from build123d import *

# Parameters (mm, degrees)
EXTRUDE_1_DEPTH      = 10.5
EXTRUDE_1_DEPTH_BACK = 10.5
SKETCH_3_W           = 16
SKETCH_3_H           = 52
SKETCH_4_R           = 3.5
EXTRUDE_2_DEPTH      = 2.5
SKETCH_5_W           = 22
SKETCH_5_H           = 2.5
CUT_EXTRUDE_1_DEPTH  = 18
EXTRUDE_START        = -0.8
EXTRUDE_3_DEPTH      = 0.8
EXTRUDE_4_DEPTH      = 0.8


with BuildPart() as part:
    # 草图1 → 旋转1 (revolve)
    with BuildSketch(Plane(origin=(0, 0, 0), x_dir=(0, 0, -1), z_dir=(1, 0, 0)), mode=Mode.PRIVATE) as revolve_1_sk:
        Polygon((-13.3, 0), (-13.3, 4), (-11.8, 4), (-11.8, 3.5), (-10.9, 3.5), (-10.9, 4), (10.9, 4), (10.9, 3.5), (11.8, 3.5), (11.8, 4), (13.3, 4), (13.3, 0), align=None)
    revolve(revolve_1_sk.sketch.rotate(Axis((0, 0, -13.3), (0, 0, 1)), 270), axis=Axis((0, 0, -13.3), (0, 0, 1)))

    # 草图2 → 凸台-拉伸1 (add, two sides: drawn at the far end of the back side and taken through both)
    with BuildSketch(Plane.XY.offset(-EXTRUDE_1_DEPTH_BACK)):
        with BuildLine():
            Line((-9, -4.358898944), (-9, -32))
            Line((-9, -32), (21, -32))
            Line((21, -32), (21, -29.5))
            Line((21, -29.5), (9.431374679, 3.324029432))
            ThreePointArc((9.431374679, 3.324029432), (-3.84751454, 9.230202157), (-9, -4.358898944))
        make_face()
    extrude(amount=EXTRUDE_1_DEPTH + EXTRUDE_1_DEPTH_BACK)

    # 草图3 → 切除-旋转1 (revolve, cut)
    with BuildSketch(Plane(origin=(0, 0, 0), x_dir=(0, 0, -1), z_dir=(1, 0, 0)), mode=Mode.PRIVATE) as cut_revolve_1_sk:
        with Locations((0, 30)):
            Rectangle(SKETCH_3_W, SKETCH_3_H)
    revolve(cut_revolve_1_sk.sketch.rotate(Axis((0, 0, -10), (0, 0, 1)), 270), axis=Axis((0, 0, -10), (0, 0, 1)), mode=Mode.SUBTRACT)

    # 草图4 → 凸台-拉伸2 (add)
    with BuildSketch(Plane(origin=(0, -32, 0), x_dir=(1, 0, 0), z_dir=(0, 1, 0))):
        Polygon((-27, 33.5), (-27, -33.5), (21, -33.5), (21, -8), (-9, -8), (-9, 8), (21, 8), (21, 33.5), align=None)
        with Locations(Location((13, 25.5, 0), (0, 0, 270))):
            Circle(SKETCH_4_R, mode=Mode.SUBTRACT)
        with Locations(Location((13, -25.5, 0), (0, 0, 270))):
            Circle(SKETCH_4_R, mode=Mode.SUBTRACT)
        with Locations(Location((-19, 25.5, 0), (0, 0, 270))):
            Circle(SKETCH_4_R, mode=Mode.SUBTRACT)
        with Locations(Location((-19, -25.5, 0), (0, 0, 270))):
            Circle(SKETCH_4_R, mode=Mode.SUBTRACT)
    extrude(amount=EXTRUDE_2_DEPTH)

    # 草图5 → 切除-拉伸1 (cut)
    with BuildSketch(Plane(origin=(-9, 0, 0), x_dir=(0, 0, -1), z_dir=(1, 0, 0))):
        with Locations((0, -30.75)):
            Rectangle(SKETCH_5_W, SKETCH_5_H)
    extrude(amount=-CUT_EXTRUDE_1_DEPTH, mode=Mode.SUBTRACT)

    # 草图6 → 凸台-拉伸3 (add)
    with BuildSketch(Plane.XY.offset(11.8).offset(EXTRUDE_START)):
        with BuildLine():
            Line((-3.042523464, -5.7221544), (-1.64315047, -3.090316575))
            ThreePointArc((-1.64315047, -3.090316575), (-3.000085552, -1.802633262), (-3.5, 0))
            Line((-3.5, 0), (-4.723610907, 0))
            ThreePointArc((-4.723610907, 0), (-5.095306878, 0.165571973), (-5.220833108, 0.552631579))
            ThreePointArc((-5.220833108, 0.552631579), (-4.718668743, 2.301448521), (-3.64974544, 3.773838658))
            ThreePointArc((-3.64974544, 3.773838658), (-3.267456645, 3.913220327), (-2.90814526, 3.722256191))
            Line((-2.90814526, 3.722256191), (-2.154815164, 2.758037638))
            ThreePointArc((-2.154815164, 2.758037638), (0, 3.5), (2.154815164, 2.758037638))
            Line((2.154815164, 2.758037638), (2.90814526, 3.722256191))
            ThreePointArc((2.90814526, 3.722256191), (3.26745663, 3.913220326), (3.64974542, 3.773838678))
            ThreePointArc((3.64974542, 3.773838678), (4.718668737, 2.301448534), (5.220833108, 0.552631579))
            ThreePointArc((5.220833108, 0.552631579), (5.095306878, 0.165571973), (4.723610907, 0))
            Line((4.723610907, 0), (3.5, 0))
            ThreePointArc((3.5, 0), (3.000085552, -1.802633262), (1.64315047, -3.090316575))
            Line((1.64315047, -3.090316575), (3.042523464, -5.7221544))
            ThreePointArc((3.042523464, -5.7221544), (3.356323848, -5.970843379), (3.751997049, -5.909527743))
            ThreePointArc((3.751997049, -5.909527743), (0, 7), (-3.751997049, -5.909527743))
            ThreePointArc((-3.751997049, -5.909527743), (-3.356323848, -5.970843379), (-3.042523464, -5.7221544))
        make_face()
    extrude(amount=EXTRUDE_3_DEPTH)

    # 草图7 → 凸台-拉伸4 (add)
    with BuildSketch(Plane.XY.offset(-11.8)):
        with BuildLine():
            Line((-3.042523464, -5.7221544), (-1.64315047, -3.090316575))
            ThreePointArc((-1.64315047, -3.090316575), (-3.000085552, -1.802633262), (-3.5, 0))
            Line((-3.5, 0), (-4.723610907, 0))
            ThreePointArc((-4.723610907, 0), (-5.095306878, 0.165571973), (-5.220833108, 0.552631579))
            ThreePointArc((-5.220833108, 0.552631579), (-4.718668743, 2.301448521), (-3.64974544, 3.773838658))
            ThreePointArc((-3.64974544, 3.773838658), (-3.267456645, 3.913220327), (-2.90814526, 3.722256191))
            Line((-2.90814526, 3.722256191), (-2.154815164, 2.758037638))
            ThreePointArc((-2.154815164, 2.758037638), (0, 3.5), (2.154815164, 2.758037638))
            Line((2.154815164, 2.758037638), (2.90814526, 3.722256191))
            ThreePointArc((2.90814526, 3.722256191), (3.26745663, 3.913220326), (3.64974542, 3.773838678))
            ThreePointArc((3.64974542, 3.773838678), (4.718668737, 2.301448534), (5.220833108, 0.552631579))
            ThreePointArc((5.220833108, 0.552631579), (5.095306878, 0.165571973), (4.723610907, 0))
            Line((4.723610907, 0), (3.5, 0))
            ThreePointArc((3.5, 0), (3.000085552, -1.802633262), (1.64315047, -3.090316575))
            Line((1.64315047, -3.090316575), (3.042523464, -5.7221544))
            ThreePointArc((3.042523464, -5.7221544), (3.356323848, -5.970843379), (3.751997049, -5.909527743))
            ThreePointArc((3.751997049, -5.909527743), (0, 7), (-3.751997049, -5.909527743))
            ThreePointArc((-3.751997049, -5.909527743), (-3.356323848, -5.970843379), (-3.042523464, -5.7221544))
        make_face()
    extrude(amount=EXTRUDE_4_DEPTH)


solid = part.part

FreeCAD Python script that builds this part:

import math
import FreeCAD as App
import Part
import Sketcher
Q = App.Units.Quantity


def add_polygon(sketch, points):
    """Adds a closed chain of lines whose ends are joined by coincident constraints."""
    first, n = sketch.GeometryCount, len(points)
    for a, b in zip(points, points[1:] + points[:1]):
        sketch.addGeometry(Part.LineSegment(App.Vector(*a, 0), App.Vector(*b, 0)), False)
    for i in range(n):
        sketch.addConstraint(Sketcher.Constraint("Coincident", first + i, 2, first + (i + 1) % n, 1))

doc = App.newDocument("Part")
body = doc.addObject("PartDesign::Body", "Body")

# Sketch on YZ plane
sketch1 = doc.addObject("Sketcher::SketchObject", "Sketch")
body.addObject(sketch1)
sketch1.AttachmentSupport = (doc.YZ_Plane, [""])
sketch1.MapMode = "FlatFace"
add_polygon(sketch1, [(4, 13.3), (0, 13.3), (0, -13.3), (4, -13.3), (4, -11.8), (3.5, -11.8), (3.5, -10.9), (4, -10.9), (4, 10.9), (3.5, 10.9), (3.5, 11.8), (4, 11.8)])  # lines 0-11
sketch1.addConstraint([
    Sketcher.Constraint("Horizontal", 0),
    Sketcher.Constraint("Vertical", 1),
    Sketcher.Constraint("Horizontal", 2),
    Sketcher.Constraint("Vertical", 3),
    Sketcher.Constraint("Horizontal", 4),
    Sketcher.Constraint("Vertical", 5),
    Sketcher.Constraint("Horizontal", 6),
    Sketcher.Constraint("Vertical", 7),
    Sketcher.Constraint("Horizontal", 8),
    Sketcher.Constraint("Vertical", 9),
    Sketcher.Constraint("Horizontal", 10),
    Sketcher.Constraint("Vertical", 11),
    Sketcher.Constraint("Symmetric", 0, 2, 1, 2, -1, 1),
    Sketcher.Constraint("Symmetric", 5, 2, 8, 2, -1),
    Sketcher.Constraint("Symmetric", 3, 2, 10, 2, -1),
    Sketcher.Constraint("Vertical", 3, 2, 6, 2),
    Sketcher.Constraint("DistanceX", 0, 2, 0, 1, Q("4 mm")),
    Sketcher.Constraint("DistanceX", 4, 2, 4, 1, Q("0.5 mm")),
    Sketcher.Constraint("DistanceY", 1, 2, 1, 1, Q("26.6 mm")),
    Sketcher.Constraint("DistanceY", 3, 1, 3, 2, Q("1.5 mm")),
    Sketcher.Constraint("DistanceY", 5, 1, 5, 2, Q("0.9 mm")),
])
revolution = doc.addObject("PartDesign::Revolution", "Revolution")
body.addObject(revolution)
revolution.Profile = sketch1
revolution.ReferenceAxis = (sketch1, ["V_Axis"])
revolution.Angle = 360

# Sketch on XY plane
sketch2 = doc.addObject("Sketcher::SketchObject", "Sketch001")
body.addObject(sketch2)
sketch2.AttachmentSupport = (doc.XY_Plane, [""])
sketch2.MapMode = "FlatFace"
sketch2.addGeometry([
    Part.LineSegment(App.Vector(-9, -4.4, 0), App.Vector(-9, -32, 0)),  # 0
    Part.LineSegment(App.Vector(-9, -32, 0), App.Vector(21, -32, 0)),  # 1
    Part.LineSegment(App.Vector(21, -32, 0), App.Vector(21, -29.5, 0)),  # 2
    Part.LineSegment(App.Vector(21, -29.5, 0), App.Vector(9.4, 3.3, 0)),  # 3
    Part.ArcOfCircle(Part.Circle(App.Vector(0, 0, 0), App.Vector(0, 0, 1), 10), math.radians(19), math.radians(206)),  # 4
], False)
sketch2.addConstraint([
    Sketcher.Constraint("Coincident", 0, 2, 1, 1),
    Sketcher.Constraint("Coincident", 1, 2, 2, 1),
    Sketcher.Constraint("Coincident", 2, 2, 3, 1),
    Sketcher.Constraint("Tangent", 3, 2, 4, 1),
    Sketcher.Constraint("Coincident", 4, 2, 0, 1),
    Sketcher.Constraint("Vertical", 0),
    Sketcher.Constraint("Horizontal", 1),
    Sketcher.Constraint("Vertical", 2),
    Sketcher.Constraint("Coincident", 4, 3, -1, 1),
    Sketcher.Constraint("Radius", 4, Q("10 mm")),
    Sketcher.Constraint("DistanceX", 1, 1, 1, 2, Q("30 mm")),
    Sketcher.Constraint("DistanceY", 2, 1, 2, 2, Q("2.5 mm")),
    Sketcher.Constraint("DistanceX", 0, 2, -1, 1, Q("9 mm")),
    Sketcher.Constraint("DistanceY", 0, 2, -1, 1, Q("32 mm")),
])
pad1 = doc.addObject("PartDesign::Pad", "Pad")
body.addObject(pad1)
pad1.Profile = sketch2
pad1.Type = "TwoLengths"
pad1.Length = 10.5
pad1.Length2 = 10.5

# Sketch on YZ plane
sketch3 = doc.addObject("Sketcher::SketchObject", "Sketch002")
body.addObject(sketch3)
sketch3.AttachmentSupport = (doc.YZ_Plane, [""])
sketch3.MapMode = "FlatFace"
add_polygon(sketch3, [(56, 8), (4, 8), (4, -8), (56, -8)])  # lines 0-3
sketch3.addConstraint([
    Sketcher.Constraint("Horizontal", 0),
    Sketcher.Constraint("Vertical", 1),
    Sketcher.Constraint("Horizontal", 2),
    Sketcher.Constraint("Vertical", 3),
    Sketcher.Constraint("DistanceX", 0, 2, 0, 1, Q("52 mm")),
    Sketcher.Constraint("DistanceY", 1, 2, 1, 1, Q("16 mm")),
    Sketcher.Constraint("DistanceX", -1, 1, 0, 2, Q("4 mm")),
    Sketcher.Constraint("DistanceY", -1, 1, 0, 2, Q("8 mm")),
])
groove = doc.addObject("PartDesign::Groove", "Groove")
body.addObject(groove)
groove.Profile = sketch3
groove.ReferenceAxis = (sketch3, ["V_Axis"])
groove.Angle = 360

# Sketch on XZ plane
sketch4 = doc.addObject("Sketcher::SketchObject", "Sketch003")
body.addObject(sketch4)
sketch4.AttachmentSupport = (doc.XZ_Plane, [""])
sketch4.MapMode = "FlatFace"
sketch4.AttachmentOffset = App.Placement(App.Vector(0, 0, 32), App.Rotation())
add_polygon(sketch4, [(-27, -33.5), (-27, 33.5), (21, 33.5), (21, 8), (-9, 8), (-9, -8), (21, -8), (21, -33.5)])  # lines 0-7
sketch4.addGeometry(Part.Circle(App.Vector(-19, 25.5, 0), App.Vector(0, 0, 1), 3.5), False)  # 8
sketch4.addGeometry(Part.Circle(App.Vector(13, 25.5, 0), App.Vector(0, 0, 1), 3.5), False)  # 9
sketch4.addGeometry(Part.Circle(App.Vector(-19, -25.5, 0), App.Vector(0, 0, 1), 3.5), False)  # 10
sketch4.addGeometry(Part.Circle(App.Vector(13, -25.5, 0), App.Vector(0, 0, 1), 3.5), False)  # 11
sketch4.addConstraint([
    Sketcher.Constraint("Vertical", 0),
    Sketcher.Constraint("Horizontal", 1),
    Sketcher.Constraint("Vertical", 2),
    Sketcher.Constraint("Horizontal", 3),
    Sketcher.Constraint("Vertical", 4),
    Sketcher.Constraint("Horizontal", 5),
    Sketcher.Constraint("Vertical", 6),
    Sketcher.Constraint("Horizontal", 7),
    Sketcher.Constraint("Equal", 8, 9),
    Sketcher.Constraint("Equal", 9, 10),
    Sketcher.Constraint("Equal", 10, 11),
    Sketcher.Constraint("Symmetric", 8, 3, 10, 3, -1),
    Sketcher.Constraint("Symmetric", 9, 3, 11, 3, -1),
    Sketcher.Constraint("Symmetric", 2, 2, 5, 2, -1),
    Sketcher.Constraint("Horizontal", 8, 3, 9, 3),
    Sketcher.Constraint("Equal", 2, 6),
    Sketcher.Constraint("Diameter", 8, Q("7 mm")),
    Sketcher.Constraint("DistanceX", 1, 1, 1, 2, Q("48 mm")),
    Sketcher.Constraint("DistanceX", 3, 2, 3, 1, Q("30 mm")),
    Sketcher.Constraint("DistanceY", 0, 1, 0, 2, Q("67 mm")),
    Sketcher.Constraint("DistanceY", 4, 2, 4, 1, Q("16 mm")),
    Sketcher.Constraint("DistanceX", 8, 3, -1, 1, Q("19 mm")),
    Sketcher.Constraint("DistanceX", -1, 1, 9, 3, Q("13 mm")),
    Sketcher.Constraint("DistanceX", 0, 2, -1, 1, Q("27 mm")),
    Sketcher.Constraint("DistanceY", 10, 3, 8, 3, Q("51 mm")),
])
pad2 = doc.addObject("PartDesign::Pad", "Pad001")
body.addObject(pad2)
pad2.Profile = sketch4
pad2.Length = 2.5
pad2.Reversed = True

# Sketch on YZ plane
sketch5 = doc.addObject("Sketcher::SketchObject", "Sketch004")
body.addObject(sketch5)
sketch5.AttachmentSupport = (doc.YZ_Plane, [""])
sketch5.MapMode = "FlatFace"
sketch5.AttachmentOffset = App.Placement(App.Vector(0, 0, -9), App.Rotation())
add_polygon(sketch5, [(-29.5, 11), (-32, 11), (-32, -11), (-29.5, -11)])  # lines 0-3
sketch5.addConstraint([
    Sketcher.Constraint("Horizontal", 0),
    Sketcher.Constraint("Vertical", 1),
    Sketcher.Constraint("Horizontal", 2),
    Sketcher.Constraint("Vertical", 3),
    Sketcher.Constraint("DistanceY", 1, 2, 1, 1, Q("22 mm")),
    Sketcher.Constraint("DistanceX", 0, 2, 0, 1, Q("2.5 mm")),
    Sketcher.Constraint("DistanceX", 0, 2, -1, 1, Q("32 mm")),
    Sketcher.Constraint("DistanceY", -1, 1, 0, 2, Q("11 mm")),
])
pocket1 = doc.addObject("PartDesign::Pocket", "Pocket")
body.addObject(pocket1)
pocket1.Profile = sketch5
pocket1.Length = 18

# Sketch on XY plane
sketch6 = doc.addObject("Sketcher::SketchObject", "Sketch005")
body.addObject(sketch6)
sketch6.AttachmentSupport = (doc.XY_Plane, [""])
sketch6.MapMode = "FlatFace"
sketch6.AttachmentOffset = App.Placement(App.Vector(0, 0, 11), App.Rotation())
sketch6.addGeometry([
    Part.LineSegment(App.Vector(-3, -5.7, 0), App.Vector(-1.6, -3.1, 0)),  # 0
    Part.ArcOfCircle(Part.Circle(App.Vector(0, 0, 0), App.Vector(0, 0, 1), 3.5), math.radians(-180), math.radians(-118)),  # 1
    Part.LineSegment(App.Vector(-3.5, 0, 0), App.Vector(-4.7, 0, 0)),  # 2
    Part.ArcOfCircle(Part.Circle(App.Vector(-4.7, 0.5, 0), App.Vector(0, 0, 1), 0.5), math.radians(174), math.radians(270)),  # 3
    Part.ArcOfCircle(Part.Circle(App.Vector(0, 0, 0), App.Vector(0, 0, 1), 5.2), math.radians(134), math.radians(174)),  # 4
    Part.ArcOfCircle(Part.Circle(App.Vector(-3.3, 3.4, 0), App.Vector(0, 0, 1), 0.5), math.radians(38), math.radians(134)),  # 5
    Part.LineSegment(App.Vector(-2.9, 3.7, 0), App.Vector(-2.2, 2.8, 0)),  # 6
    Part.ArcOfCircle(Part.Circle(App.Vector(0, 0, 0), App.Vector(0, 0, 1), 3.5), math.radians(52), math.radians(128)),  # 7
    Part.LineSegment(App.Vector(2.2, 2.8, 0), App.Vector(2.9, 3.7, 0)),  # 8
    Part.ArcOfCircle(Part.Circle(App.Vector(3.3, 3.4, 0), App.Vector(0, 0, 1), 0.5), math.radians(46), math.radians(142)),  # 9
    Part.ArcOfCircle(Part.Circle(App.Vector(0, 0, 0), App.Vector(0, 0, 1), 5.2), math.radians(6), math.radians(46)),  # 10
    Part.ArcOfCircle(Part.Circle(App.Vector(4.7, 0.5, 0), App.Vector(0, 0, 1), 0.5), math.radians(-90), math.radians(6)),  # 11
    Part.LineSegment(App.Vector(4.7, 0, 0), App.Vector(3.5, 0, 0)),  # 12
    Part.ArcOfCircle(Part.Circle(App.Vector(0, 0, 0), App.Vector(0, 0, 1), 3.5), math.radians(-62), math.radians(0)),  # 13
    Part.LineSegment(App.Vector(1.6, -3.1, 0), App.Vector(3, -5.7, 0)),  # 14
    Part.ArcOfCircle(Part.Circle(App.Vector(3.5, -5.5, 0), App.Vector(0, 0, 1), 0.5), math.radians(-152), math.radians(-58)),  # 15
    Part.ArcOfCircle(Part.Circle(App.Vector(0, 0, 0), App.Vector(0, 0, 1), 7), math.radians(-58), math.radians(238)),  # 16
    Part.ArcOfCircle(Part.Circle(App.Vector(-3.5, -5.5, 0), App.Vector(0, 0, 1), 0.5), math.radians(-122), math.radians(-28)),  # 17
], False)
sketch6.addConstraint([
    Sketcher.Constraint("Coincident", 0, 2, 1, 2),
    Sketcher.Constraint("Coincident", 1, 1, 2, 1),
    Sketcher.Constraint("Tangent", 2, 2, 3, 2),
    Sketcher.Constraint("Tangent", 3, 1, 4, 2),
    Sketcher.Constraint("Tangent", 4, 1, 5, 2),
    Sketcher.Constraint("Tangent", 5, 1, 6, 1),
    Sketcher.Constraint("Coincident", 6, 2, 7, 2),
    Sketcher.Constraint("Coincident", 7, 1, 8, 1),
    Sketcher.Constraint("Tangent", 8, 2, 9, 2),
    Sketcher.Constraint("Tangent", 9, 1, 10, 2),
    Sketcher.Constraint("Tangent", 10, 1, 11, 2),
    Sketcher.Constraint("Tangent", 11, 1, 12, 1),
    Sketcher.Constraint("Coincident", 12, 2, 13, 2),
    Sketcher.Constraint("Coincident", 13, 1, 14, 1),
    Sketcher.Constraint("Tangent", 14, 2, 15, 1),
    Sketcher.Constraint("Tangent", 15, 2, 16, 1),
    Sketcher.Constraint("Tangent", 16, 2, 17, 1),
    Sketcher.Constraint("Tangent", 17, 2, 0, 1),
    Sketcher.Constraint("Horizontal", 2),
    Sketcher.Constraint("Horizontal", 12),
    Sketcher.Constraint("Coincident", 1, 3, -1, 1),
    Sketcher.Constraint("Coincident", 4, 3, -1, 1),
    Sketcher.Constraint("Coincident", 7, 3, -1, 1),
    Sketcher.Constraint("Coincident", 10, 3, -1, 1),
    Sketcher.Constraint("Coincident", 13, 3, -1, 1),
    Sketcher.Constraint("Coincident", 16, 3, -1, 1),
    Sketcher.Constraint("Equal", 3, 5),
    Sketcher.Constraint("Equal", 1, 7),
    Sketcher.Constraint("Equal", 5, 9),
    Sketcher.Constraint("Equal", 4, 10),
    Sketcher.Constraint("Equal", 9, 11),
    Sketcher.Constraint("Equal", 7, 13),
    Sketcher.Constraint("Equal", 11, 15),
    Sketcher.Constraint("Equal", 15, 17),
    Sketcher.Constraint("Symmetric", 2, 2, 11, 1, -1, 1),
    Sketcher.Constraint("Symmetric", 5, 1, 8, 2, -2),
    Sketcher.Constraint("Symmetric", 14, 2, 17, 2, -2),
    Sketcher.Constraint("Radius", 16, Q("7 mm")),
    Sketcher.Constraint("Radius", 1, Q("3.5 mm")),
    Sketcher.Constraint("Radius", 3, Q("0.5 mm")),
    Sketcher.Constraint("Angle", 0, Q("62 deg")),
    Sketcher.Constraint("Angle", 6, Q("-52 deg")),
    Sketcher.Constraint("Radius", 4, Q("5.25 mm")),
    Sketcher.Constraint("DistanceX", 15, 3, 15, 2, Q("0.268 mm")),
    Sketcher.Constraint("DistanceX", 5, 3, 9, 3, Q("6.604301 mm")),
])
pad3 = doc.addObject("PartDesign::Pad", "Pad002")
body.addObject(pad3)
pad3.Profile = sketch6
pad3.Length = 0.8

# Sketch on XY plane
sketch7 = doc.addObject("Sketcher::SketchObject", "Sketch006")
body.addObject(sketch7)
sketch7.AttachmentSupport = (doc.XY_Plane, [""])
sketch7.MapMode = "FlatFace"
sketch7.AttachmentOffset = App.Placement(App.Vector(0, 0, -11.8), App.Rotation())
sketch7.addGeometry([
    Part.LineSegment(App.Vector(-3, -5.7, 0), App.Vector(-1.6, -3.1, 0)),  # 0
    Part.ArcOfCircle(Part.Circle(App.Vector(0, 0, 0), App.Vector(0, 0, 1), 3.5), math.radians(-180), math.radians(-118)),  # 1
    Part.LineSegment(App.Vector(-3.5, 0, 0), App.Vector(-4.7, 0, 0)),  # 2
    Part.ArcOfCircle(Part.Circle(App.Vector(-4.7, 0.5, 0), App.Vector(0, 0, 1), 0.5), math.radians(174), math.radians(270)),  # 3
    Part.ArcOfCircle(Part.Circle(App.Vector(0, 0, 0), App.Vector(0, 0, 1), 5.2), math.radians(134), math.radians(174)),  # 4
    Part.ArcOfCircle(Part.Circle(App.Vector(-3.3, 3.4, 0), App.Vector(0, 0, 1), 0.5), math.radians(38), math.radians(134)),  # 5
    Part.LineSegment(App.Vector(-2.9, 3.7, 0), App.Vector(-2.2, 2.8, 0)),  # 6
    Part.ArcOfCircle(Part.Circle(App.Vector(0, 0, 0), App.Vector(0, 0, 1), 3.5), math.radians(52), math.radians(128)),  # 7
    Part.LineSegment(App.Vector(2.2, 2.8, 0), App.Vector(2.9, 3.7, 0)),  # 8
    Part.ArcOfCircle(Part.Circle(App.Vector(3.3, 3.4, 0), App.Vector(0, 0, 1), 0.5), math.radians(46), math.radians(142)),  # 9
    Part.ArcOfCircle(Part.Circle(App.Vector(0, 0, 0), App.Vector(0, 0, 1), 5.2), math.radians(6), math.radians(46)),  # 10
    Part.ArcOfCircle(Part.Circle(App.Vector(4.7, 0.5, 0), App.Vector(0, 0, 1), 0.5), math.radians(-90), math.radians(6)),  # 11
    Part.LineSegment(App.Vector(4.7, 0, 0), App.Vector(3.5, 0, 0)),  # 12
    Part.ArcOfCircle(Part.Circle(App.Vector(0, 0, 0), App.Vector(0, 0, 1), 3.5), math.radians(-62), math.radians(0)),  # 13
    Part.LineSegment(App.Vector(1.6, -3.1, 0), App.Vector(3, -5.7, 0)),  # 14
    Part.ArcOfCircle(Part.Circle(App.Vector(3.5, -5.5, 0), App.Vector(0, 0, 1), 0.5), math.radians(-152), math.radians(-58)),  # 15
    Part.ArcOfCircle(Part.Circle(App.Vector(0, 0, 0), App.Vector(0, 0, 1), 7), math.radians(-58), math.radians(238)),  # 16
    Part.ArcOfCircle(Part.Circle(App.Vector(-3.5, -5.5, 0), App.Vector(0, 0, 1), 0.5), math.radians(-122), math.radians(-28)),  # 17
], False)
sketch7.addConstraint([
    Sketcher.Constraint("Coincident", 0, 2, 1, 2),
    Sketcher.Constraint("Coincident", 1, 1, 2, 1),
    Sketcher.Constraint("Tangent", 2, 2, 3, 2),
    Sketcher.Constraint("Tangent", 3, 1, 4, 2),
    Sketcher.Constraint("Tangent", 4, 1, 5, 2),
    Sketcher.Constraint("Tangent", 5, 1, 6, 1),
    Sketcher.Constraint("Coincident", 6, 2, 7, 2),
    Sketcher.Constraint("Coincident", 7, 1, 8, 1),
    Sketcher.Constraint("Tangent", 8, 2, 9, 2),
    Sketcher.Constraint("Tangent", 9, 1, 10, 2),
    Sketcher.Constraint("Tangent", 10, 1, 11, 2),
    Sketcher.Constraint("Tangent", 11, 1, 12, 1),
    Sketcher.Constraint("Coincident", 12, 2, 13, 2),
    Sketcher.Constraint("Coincident", 13, 1, 14, 1),
    Sketcher.Constraint("Tangent", 14, 2, 15, 1),
    Sketcher.Constraint("Tangent", 15, 2, 16, 1),
    Sketcher.Constraint("Tangent", 16, 2, 17, 1),
    Sketcher.Constraint("Tangent", 17, 2, 0, 1),
    Sketcher.Constraint("Horizontal", 2),
    Sketcher.Constraint("Horizontal", 12),
    Sketcher.Constraint("Coincident", 1, 3, -1, 1),
    Sketcher.Constraint("Coincident", 4, 3, -1, 1),
    Sketcher.Constraint("Coincident", 7, 3, -1, 1),
    Sketcher.Constraint("Coincident", 10, 3, -1, 1),
    Sketcher.Constraint("Coincident", 13, 3, -1, 1),
    Sketcher.Constraint("Coincident", 16, 3, -1, 1),
    Sketcher.Constraint("Equal", 3, 5),
    Sketcher.Constraint("Equal", 1, 7),
    Sketcher.Constraint("Equal", 5, 9),
    Sketcher.Constraint("Equal", 4, 10),
    Sketcher.Constraint("Equal", 9, 11),
    Sketcher.Constraint("Equal", 7, 13),
    Sketcher.Constraint("Equal", 11, 15),
    Sketcher.Constraint("Equal", 15, 17),
    Sketcher.Constraint("Symmetric", 2, 2, 11, 1, -1, 1),
    Sketcher.Constraint("Symmetric", 5, 1, 8, 2, -2),
    Sketcher.Constraint("Symmetric", 14, 2, 17, 2, -2),
    Sketcher.Constraint("Radius", 16, Q("7 mm")),
    Sketcher.Constraint("Radius", 1, Q("3.5 mm")),
    Sketcher.Constraint("Radius", 3, Q("0.5 mm")),
    Sketcher.Constraint("Angle", 0, Q("62 deg")),
    Sketcher.Constraint("Angle", 6, Q("-52 deg")),
    Sketcher.Constraint("Radius", 4, Q("5.25 mm")),
    Sketcher.Constraint("DistanceX", 15, 3, 15, 2, Q("0.268 mm")),
    Sketcher.Constraint("DistanceX", 5, 3, 9, 3, Q("6.604301 mm")),
])
pad4 = doc.addObject("PartDesign::Pad", "Pad003")
body.addObject(pad4)
pad4.Profile = sketch7
pad4.Length = 0.8

doc.recompute()
